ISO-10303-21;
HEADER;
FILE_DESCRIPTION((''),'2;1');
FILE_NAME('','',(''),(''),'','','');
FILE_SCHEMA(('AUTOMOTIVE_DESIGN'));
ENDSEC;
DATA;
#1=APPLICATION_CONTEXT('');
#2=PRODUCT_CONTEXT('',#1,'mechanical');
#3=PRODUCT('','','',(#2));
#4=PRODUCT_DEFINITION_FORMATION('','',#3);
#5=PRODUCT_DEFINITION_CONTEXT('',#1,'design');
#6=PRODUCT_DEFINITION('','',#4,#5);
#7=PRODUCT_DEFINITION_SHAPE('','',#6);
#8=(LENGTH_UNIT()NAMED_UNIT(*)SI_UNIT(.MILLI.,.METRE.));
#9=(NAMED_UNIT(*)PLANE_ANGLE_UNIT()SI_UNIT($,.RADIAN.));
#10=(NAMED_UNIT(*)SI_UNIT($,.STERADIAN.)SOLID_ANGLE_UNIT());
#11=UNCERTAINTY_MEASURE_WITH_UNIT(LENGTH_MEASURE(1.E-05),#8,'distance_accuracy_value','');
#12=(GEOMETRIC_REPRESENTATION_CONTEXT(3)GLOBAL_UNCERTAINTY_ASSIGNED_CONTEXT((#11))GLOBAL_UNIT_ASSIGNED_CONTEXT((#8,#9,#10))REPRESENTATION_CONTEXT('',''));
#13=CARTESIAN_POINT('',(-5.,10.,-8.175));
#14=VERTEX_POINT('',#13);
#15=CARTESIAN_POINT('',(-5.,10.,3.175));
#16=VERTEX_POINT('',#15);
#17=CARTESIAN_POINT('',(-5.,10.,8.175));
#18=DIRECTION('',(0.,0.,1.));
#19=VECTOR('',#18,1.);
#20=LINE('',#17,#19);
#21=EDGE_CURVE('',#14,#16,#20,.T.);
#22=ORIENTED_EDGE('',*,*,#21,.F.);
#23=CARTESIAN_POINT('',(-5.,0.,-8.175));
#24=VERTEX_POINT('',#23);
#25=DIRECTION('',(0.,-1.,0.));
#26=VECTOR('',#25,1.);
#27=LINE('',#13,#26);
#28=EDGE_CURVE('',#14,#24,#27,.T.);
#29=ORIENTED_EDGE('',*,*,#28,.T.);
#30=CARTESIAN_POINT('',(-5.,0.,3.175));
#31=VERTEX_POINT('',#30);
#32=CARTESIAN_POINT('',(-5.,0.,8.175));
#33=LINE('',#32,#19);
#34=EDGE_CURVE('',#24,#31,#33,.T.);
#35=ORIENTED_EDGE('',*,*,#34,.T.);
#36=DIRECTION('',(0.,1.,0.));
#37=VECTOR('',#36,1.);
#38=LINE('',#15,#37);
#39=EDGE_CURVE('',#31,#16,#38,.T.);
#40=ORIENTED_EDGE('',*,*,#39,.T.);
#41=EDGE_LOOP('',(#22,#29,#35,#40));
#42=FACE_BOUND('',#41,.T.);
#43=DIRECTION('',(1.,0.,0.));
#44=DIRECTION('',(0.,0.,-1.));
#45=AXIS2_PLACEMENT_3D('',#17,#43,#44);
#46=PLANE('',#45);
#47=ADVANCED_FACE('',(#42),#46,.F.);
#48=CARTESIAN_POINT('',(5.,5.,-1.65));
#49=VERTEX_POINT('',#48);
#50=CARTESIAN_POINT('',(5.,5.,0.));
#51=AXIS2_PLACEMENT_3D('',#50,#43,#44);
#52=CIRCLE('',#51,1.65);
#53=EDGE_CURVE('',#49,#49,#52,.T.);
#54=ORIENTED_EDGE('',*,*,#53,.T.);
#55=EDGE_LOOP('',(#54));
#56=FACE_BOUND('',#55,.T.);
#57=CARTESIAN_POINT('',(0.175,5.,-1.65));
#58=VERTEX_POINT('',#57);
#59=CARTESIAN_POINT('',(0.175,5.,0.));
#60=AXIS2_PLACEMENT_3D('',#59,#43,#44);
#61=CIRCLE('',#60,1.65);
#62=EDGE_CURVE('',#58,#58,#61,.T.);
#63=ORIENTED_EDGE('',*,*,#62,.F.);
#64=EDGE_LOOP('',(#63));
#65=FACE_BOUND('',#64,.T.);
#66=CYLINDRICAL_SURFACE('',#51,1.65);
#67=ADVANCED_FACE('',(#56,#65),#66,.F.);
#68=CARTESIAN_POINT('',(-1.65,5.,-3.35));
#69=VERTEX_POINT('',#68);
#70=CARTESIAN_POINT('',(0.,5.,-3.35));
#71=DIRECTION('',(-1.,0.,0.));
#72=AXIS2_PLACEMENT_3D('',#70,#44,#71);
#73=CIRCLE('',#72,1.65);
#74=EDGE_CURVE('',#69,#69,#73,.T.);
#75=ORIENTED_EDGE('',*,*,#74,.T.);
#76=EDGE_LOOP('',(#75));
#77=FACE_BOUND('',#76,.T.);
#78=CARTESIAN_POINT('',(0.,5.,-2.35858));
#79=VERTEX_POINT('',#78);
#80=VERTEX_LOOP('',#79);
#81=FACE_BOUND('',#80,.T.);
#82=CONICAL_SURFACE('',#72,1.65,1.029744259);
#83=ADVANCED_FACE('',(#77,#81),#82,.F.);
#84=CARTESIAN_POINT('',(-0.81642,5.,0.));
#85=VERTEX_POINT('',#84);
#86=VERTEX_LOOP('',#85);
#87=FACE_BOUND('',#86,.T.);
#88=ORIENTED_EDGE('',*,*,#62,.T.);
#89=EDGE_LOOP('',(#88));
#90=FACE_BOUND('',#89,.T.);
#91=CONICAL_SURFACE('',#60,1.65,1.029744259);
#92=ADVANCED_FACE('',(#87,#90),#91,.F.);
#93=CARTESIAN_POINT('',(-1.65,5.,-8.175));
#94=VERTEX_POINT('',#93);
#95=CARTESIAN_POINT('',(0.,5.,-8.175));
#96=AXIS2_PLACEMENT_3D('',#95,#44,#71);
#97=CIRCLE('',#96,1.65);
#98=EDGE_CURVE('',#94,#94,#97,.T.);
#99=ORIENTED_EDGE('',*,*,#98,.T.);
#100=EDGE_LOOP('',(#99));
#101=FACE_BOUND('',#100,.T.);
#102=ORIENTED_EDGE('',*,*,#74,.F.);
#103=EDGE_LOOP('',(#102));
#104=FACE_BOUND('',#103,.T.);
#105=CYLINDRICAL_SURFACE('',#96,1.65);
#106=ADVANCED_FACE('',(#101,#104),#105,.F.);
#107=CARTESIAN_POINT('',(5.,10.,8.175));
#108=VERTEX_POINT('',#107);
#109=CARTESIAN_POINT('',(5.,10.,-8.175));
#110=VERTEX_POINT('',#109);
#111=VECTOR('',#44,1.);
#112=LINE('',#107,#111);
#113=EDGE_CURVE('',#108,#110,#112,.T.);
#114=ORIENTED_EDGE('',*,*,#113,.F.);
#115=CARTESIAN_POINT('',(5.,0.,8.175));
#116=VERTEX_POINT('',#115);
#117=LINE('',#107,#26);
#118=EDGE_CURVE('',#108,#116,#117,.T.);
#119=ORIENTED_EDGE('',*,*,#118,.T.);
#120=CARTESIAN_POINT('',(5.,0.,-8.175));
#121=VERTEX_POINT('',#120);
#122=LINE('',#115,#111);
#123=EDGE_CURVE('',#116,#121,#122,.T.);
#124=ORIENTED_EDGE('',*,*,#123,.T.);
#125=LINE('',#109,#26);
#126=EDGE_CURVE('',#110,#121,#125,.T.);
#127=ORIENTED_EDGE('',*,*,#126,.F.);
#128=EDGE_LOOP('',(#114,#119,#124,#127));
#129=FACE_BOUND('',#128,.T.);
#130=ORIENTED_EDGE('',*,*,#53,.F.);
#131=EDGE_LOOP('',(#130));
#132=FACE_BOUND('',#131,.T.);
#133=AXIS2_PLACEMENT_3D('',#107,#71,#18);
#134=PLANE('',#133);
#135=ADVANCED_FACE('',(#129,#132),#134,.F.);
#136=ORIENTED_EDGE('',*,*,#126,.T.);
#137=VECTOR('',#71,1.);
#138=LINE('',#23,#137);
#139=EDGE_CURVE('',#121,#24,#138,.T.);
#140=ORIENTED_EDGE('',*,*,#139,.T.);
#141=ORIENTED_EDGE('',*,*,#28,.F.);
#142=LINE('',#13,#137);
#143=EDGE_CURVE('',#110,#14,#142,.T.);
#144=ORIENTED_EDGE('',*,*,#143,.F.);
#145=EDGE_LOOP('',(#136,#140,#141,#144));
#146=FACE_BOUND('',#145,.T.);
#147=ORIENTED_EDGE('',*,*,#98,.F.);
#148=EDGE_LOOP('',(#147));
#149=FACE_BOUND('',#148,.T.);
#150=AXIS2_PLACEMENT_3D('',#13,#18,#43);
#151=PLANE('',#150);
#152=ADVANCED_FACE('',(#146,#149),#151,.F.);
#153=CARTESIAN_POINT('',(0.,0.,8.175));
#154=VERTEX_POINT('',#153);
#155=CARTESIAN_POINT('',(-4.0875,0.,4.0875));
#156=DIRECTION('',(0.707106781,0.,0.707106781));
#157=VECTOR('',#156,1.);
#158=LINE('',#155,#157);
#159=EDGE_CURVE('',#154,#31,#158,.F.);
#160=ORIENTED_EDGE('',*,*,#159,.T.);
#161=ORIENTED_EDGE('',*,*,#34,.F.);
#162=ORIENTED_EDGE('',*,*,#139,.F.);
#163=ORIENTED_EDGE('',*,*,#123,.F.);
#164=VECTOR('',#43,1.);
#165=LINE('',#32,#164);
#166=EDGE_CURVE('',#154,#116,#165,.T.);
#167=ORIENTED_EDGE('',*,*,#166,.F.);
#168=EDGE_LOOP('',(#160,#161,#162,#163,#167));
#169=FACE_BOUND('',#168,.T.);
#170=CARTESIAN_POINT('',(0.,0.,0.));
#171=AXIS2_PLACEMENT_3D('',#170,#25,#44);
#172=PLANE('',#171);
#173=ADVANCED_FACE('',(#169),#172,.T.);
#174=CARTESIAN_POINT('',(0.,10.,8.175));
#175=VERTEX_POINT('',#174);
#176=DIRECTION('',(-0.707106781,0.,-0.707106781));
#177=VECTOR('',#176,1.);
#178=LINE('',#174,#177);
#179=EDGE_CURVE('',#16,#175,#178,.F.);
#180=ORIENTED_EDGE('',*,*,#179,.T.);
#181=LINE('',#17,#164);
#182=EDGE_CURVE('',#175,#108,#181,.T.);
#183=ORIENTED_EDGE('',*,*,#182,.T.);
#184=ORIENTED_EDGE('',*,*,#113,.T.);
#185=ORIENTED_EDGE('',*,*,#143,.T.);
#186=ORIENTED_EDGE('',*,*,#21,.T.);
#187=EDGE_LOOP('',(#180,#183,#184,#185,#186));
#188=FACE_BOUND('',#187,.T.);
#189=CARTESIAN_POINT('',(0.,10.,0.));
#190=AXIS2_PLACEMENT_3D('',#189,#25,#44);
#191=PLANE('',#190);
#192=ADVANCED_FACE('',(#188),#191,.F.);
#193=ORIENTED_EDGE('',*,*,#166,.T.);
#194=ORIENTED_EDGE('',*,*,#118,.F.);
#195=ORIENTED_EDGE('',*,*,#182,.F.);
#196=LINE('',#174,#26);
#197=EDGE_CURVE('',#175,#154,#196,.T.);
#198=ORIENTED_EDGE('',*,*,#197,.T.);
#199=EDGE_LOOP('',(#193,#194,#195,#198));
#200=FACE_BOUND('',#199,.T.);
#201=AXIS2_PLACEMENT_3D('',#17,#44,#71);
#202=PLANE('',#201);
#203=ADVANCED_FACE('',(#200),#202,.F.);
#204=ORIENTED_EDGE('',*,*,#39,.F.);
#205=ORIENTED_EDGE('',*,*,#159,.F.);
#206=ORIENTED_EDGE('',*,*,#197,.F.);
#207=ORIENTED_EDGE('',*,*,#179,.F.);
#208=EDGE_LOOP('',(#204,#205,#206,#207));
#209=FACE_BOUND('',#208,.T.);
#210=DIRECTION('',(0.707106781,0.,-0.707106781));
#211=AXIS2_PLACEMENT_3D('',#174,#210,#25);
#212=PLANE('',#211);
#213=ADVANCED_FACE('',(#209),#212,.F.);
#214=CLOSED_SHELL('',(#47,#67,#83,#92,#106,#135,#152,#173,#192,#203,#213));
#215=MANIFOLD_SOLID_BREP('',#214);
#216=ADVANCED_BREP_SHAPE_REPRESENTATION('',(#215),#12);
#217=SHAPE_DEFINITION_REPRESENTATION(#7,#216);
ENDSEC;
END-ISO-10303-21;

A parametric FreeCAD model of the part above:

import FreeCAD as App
import Part
import Sketcher

V = App.Vector


def edges_at(feature, points):
    """Names of the edges that pass closest to the given points."""
    edges = feature.Shape.Edges
    near = lambda p: min(range(len(edges)), key=lambda i: edges[i].distToShape(Part.Vertex(*p))[0])
    return sorted({f"Edge{near(p) + 1}" for p in points})


def add_polygon(sketch, points):
    """Adds a closed chain of lines whose ends are joined by coincident constraints."""
    first, n = sketch.GeometryCount, len(points)
    for a, b in zip(points, points[1:] + points[:1]):
        sketch.addGeometry(Part.LineSegment(App.Vector(*a, 0), App.Vector(*b, 0)), False)
    for i in range(n):
        sketch.addConstraint(Sketcher.Constraint("Coincident", first + i, 2, first + (i + 1) % n, 1))

doc = App.newDocument("Part")
params = doc.addObject("Spreadsheet::Sheet", "Params")
for row, (alias, value) in enumerate([
    ("sketch1_width", "10 mm"),
    ("sketch1_height", "16.35 mm"),
    ("pad1_length", "10 mm"),
    ("chamfer_size", "5 mm"),
    ("sketch2_diameter", "3.3 mm"),
    ("hole_diameter", "3.3 mm"),
    ("hole_depth", "4.825 mm"),
    ("sketch3_diameter", "3.3 mm"),
    ("hole2_diameter", "3.3 mm"),
    ("hole2_depth", "4.825 mm"),
], start=1):
    params.set(f"A{row}", alias)
    params.set(f"B{row}", "=" + value)
    params.setAlias(f"B{row}", alias)

body = doc.addObject("PartDesign::Body", "Body")

sketch1 = doc.addObject("Sketcher::SketchObject", "Sketch")
body.addObject(sketch1)
sketch1.AttachmentSupport = (doc.XZ_Plane, [""])
sketch1.MapMode = "FlatFace"
add_polygon(sketch1, [(-5, -8), (-5, 8), (5, 8), (5, -8)])
sketch1.addConstraint(Sketcher.Constraint("Vertical", 0))
sketch1.addConstraint(Sketcher.Constraint("Horizontal", 1))
sketch1.addConstraint(Sketcher.Constraint("Vertical", 2))
sketch1.addConstraint(Sketcher.Constraint("Horizontal", 3))
sketch1.addConstraint(Sketcher.Constraint("Symmetric", 0, 2, 2, 2, -1, 1))
sketch1.addConstraint(Sketcher.Constraint("DistanceX", 1, 1, 1, 2, 10.0))
sketch1.addConstraint(Sketcher.Constraint("DistanceY", 0, 1, 0, 2, 16.35))
sketch1.setExpression("Constraints[9]", "Params.sketch1_width")
sketch1.setExpression("Constraints[10]", "Params.sketch1_height")
pad1 = doc.addObject("PartDesign::Pad", "Pad")
body.addObject(pad1)
pad1.Profile = sketch1
pad1.setExpression("Length", "Params.pad1_length")
pad1.Reversed = True
doc.recompute()

chamfer = doc.addObject("PartDesign::Chamfer", "Chamfer")
body.addObject(chamfer)
chamfer.Base = (pad1, edges_at(pad1, [(-5, 5, 8.175)]))
chamfer.setExpression("Size", "Params.chamfer_size")

sketch2 = doc.addObject("Sketcher::SketchObject", "Sketch001")
body.addObject(sketch2)
sketch2.AttachmentSupport = (doc.YZ_Plane, [""])
sketch2.MapMode = "FlatFace"
sketch2.AttachmentOffset = App.Placement(V(0, 0, 5), App.Rotation())
sketch2.addGeometry(Part.Circle(V(5, 0, 0), V(0, 0, 1), 1.6), False)
sketch2.addConstraint(Sketcher.Constraint("PointOnObject", 0, 3, -1))
sketch2.addConstraint(Sketcher.Constraint("Diameter", 0, 3.3))
sketch2.addConstraint(Sketcher.Constraint("DistanceX", -1, 1, 0, 3, 5.0))
sketch2.setExpression("Constraints[1]", "Params.sketch2_diameter")
doc.recompute()
hole = doc.addObject("PartDesign::Hole", "Hole")
body.addObject(hole)
hole.Profile = sketch2
hole.ThreadType = "None"
hole.setExpression("Diameter", "Params.hole_diameter")
hole.DepthType = "Dimension"
hole.setExpression("Depth", "Params.hole_depth")
hole.DrillPoint = "Angled"
hole.DrillPointAngle = 118

sketch3 = doc.addObject("Sketcher::SketchObject", "Sketch002")
body.addObject(sketch3)
sketch3.AttachmentSupport = (doc.XY_Plane, [""])
sketch3.MapMode = "FlatFace"
sketch3.AttachmentOffset = App.Placement(V(0, 0, -8.175), App.Rotation())
sketch3.addGeometry(Part.Circle(V(0, 5, 0), V(0, 0, 1), 1.6), False)
sketch3.addConstraint(Sketcher.Constraint("PointOnObject", 0, 3, -2))
sketch3.addConstraint(Sketcher.Constraint("Diameter", 0, 3.3))
sketch3.addConstraint(Sketcher.Constraint("DistanceY", -1, 1, 0, 3, 5.0))
sketch3.setExpression("Constraints[1]", "Params.sketch3_diameter")
doc.recompute()
hole2 = doc.addObject("PartDesign::Hole", "Hole001")
body.addObject(hole2)
hole2.Profile = sketch3
hole2.ThreadType = "None"
hole2.setExpression("Diameter", "Params.hole2_diameter")
hole2.DepthType = "Dimension"
hole2.setExpression("Depth", "Params.hole2_depth")
hole2.DrillPoint = "Angled"
hole2.DrillPointAngle = 118
hole2.Reversed = True

doc.recompute()
